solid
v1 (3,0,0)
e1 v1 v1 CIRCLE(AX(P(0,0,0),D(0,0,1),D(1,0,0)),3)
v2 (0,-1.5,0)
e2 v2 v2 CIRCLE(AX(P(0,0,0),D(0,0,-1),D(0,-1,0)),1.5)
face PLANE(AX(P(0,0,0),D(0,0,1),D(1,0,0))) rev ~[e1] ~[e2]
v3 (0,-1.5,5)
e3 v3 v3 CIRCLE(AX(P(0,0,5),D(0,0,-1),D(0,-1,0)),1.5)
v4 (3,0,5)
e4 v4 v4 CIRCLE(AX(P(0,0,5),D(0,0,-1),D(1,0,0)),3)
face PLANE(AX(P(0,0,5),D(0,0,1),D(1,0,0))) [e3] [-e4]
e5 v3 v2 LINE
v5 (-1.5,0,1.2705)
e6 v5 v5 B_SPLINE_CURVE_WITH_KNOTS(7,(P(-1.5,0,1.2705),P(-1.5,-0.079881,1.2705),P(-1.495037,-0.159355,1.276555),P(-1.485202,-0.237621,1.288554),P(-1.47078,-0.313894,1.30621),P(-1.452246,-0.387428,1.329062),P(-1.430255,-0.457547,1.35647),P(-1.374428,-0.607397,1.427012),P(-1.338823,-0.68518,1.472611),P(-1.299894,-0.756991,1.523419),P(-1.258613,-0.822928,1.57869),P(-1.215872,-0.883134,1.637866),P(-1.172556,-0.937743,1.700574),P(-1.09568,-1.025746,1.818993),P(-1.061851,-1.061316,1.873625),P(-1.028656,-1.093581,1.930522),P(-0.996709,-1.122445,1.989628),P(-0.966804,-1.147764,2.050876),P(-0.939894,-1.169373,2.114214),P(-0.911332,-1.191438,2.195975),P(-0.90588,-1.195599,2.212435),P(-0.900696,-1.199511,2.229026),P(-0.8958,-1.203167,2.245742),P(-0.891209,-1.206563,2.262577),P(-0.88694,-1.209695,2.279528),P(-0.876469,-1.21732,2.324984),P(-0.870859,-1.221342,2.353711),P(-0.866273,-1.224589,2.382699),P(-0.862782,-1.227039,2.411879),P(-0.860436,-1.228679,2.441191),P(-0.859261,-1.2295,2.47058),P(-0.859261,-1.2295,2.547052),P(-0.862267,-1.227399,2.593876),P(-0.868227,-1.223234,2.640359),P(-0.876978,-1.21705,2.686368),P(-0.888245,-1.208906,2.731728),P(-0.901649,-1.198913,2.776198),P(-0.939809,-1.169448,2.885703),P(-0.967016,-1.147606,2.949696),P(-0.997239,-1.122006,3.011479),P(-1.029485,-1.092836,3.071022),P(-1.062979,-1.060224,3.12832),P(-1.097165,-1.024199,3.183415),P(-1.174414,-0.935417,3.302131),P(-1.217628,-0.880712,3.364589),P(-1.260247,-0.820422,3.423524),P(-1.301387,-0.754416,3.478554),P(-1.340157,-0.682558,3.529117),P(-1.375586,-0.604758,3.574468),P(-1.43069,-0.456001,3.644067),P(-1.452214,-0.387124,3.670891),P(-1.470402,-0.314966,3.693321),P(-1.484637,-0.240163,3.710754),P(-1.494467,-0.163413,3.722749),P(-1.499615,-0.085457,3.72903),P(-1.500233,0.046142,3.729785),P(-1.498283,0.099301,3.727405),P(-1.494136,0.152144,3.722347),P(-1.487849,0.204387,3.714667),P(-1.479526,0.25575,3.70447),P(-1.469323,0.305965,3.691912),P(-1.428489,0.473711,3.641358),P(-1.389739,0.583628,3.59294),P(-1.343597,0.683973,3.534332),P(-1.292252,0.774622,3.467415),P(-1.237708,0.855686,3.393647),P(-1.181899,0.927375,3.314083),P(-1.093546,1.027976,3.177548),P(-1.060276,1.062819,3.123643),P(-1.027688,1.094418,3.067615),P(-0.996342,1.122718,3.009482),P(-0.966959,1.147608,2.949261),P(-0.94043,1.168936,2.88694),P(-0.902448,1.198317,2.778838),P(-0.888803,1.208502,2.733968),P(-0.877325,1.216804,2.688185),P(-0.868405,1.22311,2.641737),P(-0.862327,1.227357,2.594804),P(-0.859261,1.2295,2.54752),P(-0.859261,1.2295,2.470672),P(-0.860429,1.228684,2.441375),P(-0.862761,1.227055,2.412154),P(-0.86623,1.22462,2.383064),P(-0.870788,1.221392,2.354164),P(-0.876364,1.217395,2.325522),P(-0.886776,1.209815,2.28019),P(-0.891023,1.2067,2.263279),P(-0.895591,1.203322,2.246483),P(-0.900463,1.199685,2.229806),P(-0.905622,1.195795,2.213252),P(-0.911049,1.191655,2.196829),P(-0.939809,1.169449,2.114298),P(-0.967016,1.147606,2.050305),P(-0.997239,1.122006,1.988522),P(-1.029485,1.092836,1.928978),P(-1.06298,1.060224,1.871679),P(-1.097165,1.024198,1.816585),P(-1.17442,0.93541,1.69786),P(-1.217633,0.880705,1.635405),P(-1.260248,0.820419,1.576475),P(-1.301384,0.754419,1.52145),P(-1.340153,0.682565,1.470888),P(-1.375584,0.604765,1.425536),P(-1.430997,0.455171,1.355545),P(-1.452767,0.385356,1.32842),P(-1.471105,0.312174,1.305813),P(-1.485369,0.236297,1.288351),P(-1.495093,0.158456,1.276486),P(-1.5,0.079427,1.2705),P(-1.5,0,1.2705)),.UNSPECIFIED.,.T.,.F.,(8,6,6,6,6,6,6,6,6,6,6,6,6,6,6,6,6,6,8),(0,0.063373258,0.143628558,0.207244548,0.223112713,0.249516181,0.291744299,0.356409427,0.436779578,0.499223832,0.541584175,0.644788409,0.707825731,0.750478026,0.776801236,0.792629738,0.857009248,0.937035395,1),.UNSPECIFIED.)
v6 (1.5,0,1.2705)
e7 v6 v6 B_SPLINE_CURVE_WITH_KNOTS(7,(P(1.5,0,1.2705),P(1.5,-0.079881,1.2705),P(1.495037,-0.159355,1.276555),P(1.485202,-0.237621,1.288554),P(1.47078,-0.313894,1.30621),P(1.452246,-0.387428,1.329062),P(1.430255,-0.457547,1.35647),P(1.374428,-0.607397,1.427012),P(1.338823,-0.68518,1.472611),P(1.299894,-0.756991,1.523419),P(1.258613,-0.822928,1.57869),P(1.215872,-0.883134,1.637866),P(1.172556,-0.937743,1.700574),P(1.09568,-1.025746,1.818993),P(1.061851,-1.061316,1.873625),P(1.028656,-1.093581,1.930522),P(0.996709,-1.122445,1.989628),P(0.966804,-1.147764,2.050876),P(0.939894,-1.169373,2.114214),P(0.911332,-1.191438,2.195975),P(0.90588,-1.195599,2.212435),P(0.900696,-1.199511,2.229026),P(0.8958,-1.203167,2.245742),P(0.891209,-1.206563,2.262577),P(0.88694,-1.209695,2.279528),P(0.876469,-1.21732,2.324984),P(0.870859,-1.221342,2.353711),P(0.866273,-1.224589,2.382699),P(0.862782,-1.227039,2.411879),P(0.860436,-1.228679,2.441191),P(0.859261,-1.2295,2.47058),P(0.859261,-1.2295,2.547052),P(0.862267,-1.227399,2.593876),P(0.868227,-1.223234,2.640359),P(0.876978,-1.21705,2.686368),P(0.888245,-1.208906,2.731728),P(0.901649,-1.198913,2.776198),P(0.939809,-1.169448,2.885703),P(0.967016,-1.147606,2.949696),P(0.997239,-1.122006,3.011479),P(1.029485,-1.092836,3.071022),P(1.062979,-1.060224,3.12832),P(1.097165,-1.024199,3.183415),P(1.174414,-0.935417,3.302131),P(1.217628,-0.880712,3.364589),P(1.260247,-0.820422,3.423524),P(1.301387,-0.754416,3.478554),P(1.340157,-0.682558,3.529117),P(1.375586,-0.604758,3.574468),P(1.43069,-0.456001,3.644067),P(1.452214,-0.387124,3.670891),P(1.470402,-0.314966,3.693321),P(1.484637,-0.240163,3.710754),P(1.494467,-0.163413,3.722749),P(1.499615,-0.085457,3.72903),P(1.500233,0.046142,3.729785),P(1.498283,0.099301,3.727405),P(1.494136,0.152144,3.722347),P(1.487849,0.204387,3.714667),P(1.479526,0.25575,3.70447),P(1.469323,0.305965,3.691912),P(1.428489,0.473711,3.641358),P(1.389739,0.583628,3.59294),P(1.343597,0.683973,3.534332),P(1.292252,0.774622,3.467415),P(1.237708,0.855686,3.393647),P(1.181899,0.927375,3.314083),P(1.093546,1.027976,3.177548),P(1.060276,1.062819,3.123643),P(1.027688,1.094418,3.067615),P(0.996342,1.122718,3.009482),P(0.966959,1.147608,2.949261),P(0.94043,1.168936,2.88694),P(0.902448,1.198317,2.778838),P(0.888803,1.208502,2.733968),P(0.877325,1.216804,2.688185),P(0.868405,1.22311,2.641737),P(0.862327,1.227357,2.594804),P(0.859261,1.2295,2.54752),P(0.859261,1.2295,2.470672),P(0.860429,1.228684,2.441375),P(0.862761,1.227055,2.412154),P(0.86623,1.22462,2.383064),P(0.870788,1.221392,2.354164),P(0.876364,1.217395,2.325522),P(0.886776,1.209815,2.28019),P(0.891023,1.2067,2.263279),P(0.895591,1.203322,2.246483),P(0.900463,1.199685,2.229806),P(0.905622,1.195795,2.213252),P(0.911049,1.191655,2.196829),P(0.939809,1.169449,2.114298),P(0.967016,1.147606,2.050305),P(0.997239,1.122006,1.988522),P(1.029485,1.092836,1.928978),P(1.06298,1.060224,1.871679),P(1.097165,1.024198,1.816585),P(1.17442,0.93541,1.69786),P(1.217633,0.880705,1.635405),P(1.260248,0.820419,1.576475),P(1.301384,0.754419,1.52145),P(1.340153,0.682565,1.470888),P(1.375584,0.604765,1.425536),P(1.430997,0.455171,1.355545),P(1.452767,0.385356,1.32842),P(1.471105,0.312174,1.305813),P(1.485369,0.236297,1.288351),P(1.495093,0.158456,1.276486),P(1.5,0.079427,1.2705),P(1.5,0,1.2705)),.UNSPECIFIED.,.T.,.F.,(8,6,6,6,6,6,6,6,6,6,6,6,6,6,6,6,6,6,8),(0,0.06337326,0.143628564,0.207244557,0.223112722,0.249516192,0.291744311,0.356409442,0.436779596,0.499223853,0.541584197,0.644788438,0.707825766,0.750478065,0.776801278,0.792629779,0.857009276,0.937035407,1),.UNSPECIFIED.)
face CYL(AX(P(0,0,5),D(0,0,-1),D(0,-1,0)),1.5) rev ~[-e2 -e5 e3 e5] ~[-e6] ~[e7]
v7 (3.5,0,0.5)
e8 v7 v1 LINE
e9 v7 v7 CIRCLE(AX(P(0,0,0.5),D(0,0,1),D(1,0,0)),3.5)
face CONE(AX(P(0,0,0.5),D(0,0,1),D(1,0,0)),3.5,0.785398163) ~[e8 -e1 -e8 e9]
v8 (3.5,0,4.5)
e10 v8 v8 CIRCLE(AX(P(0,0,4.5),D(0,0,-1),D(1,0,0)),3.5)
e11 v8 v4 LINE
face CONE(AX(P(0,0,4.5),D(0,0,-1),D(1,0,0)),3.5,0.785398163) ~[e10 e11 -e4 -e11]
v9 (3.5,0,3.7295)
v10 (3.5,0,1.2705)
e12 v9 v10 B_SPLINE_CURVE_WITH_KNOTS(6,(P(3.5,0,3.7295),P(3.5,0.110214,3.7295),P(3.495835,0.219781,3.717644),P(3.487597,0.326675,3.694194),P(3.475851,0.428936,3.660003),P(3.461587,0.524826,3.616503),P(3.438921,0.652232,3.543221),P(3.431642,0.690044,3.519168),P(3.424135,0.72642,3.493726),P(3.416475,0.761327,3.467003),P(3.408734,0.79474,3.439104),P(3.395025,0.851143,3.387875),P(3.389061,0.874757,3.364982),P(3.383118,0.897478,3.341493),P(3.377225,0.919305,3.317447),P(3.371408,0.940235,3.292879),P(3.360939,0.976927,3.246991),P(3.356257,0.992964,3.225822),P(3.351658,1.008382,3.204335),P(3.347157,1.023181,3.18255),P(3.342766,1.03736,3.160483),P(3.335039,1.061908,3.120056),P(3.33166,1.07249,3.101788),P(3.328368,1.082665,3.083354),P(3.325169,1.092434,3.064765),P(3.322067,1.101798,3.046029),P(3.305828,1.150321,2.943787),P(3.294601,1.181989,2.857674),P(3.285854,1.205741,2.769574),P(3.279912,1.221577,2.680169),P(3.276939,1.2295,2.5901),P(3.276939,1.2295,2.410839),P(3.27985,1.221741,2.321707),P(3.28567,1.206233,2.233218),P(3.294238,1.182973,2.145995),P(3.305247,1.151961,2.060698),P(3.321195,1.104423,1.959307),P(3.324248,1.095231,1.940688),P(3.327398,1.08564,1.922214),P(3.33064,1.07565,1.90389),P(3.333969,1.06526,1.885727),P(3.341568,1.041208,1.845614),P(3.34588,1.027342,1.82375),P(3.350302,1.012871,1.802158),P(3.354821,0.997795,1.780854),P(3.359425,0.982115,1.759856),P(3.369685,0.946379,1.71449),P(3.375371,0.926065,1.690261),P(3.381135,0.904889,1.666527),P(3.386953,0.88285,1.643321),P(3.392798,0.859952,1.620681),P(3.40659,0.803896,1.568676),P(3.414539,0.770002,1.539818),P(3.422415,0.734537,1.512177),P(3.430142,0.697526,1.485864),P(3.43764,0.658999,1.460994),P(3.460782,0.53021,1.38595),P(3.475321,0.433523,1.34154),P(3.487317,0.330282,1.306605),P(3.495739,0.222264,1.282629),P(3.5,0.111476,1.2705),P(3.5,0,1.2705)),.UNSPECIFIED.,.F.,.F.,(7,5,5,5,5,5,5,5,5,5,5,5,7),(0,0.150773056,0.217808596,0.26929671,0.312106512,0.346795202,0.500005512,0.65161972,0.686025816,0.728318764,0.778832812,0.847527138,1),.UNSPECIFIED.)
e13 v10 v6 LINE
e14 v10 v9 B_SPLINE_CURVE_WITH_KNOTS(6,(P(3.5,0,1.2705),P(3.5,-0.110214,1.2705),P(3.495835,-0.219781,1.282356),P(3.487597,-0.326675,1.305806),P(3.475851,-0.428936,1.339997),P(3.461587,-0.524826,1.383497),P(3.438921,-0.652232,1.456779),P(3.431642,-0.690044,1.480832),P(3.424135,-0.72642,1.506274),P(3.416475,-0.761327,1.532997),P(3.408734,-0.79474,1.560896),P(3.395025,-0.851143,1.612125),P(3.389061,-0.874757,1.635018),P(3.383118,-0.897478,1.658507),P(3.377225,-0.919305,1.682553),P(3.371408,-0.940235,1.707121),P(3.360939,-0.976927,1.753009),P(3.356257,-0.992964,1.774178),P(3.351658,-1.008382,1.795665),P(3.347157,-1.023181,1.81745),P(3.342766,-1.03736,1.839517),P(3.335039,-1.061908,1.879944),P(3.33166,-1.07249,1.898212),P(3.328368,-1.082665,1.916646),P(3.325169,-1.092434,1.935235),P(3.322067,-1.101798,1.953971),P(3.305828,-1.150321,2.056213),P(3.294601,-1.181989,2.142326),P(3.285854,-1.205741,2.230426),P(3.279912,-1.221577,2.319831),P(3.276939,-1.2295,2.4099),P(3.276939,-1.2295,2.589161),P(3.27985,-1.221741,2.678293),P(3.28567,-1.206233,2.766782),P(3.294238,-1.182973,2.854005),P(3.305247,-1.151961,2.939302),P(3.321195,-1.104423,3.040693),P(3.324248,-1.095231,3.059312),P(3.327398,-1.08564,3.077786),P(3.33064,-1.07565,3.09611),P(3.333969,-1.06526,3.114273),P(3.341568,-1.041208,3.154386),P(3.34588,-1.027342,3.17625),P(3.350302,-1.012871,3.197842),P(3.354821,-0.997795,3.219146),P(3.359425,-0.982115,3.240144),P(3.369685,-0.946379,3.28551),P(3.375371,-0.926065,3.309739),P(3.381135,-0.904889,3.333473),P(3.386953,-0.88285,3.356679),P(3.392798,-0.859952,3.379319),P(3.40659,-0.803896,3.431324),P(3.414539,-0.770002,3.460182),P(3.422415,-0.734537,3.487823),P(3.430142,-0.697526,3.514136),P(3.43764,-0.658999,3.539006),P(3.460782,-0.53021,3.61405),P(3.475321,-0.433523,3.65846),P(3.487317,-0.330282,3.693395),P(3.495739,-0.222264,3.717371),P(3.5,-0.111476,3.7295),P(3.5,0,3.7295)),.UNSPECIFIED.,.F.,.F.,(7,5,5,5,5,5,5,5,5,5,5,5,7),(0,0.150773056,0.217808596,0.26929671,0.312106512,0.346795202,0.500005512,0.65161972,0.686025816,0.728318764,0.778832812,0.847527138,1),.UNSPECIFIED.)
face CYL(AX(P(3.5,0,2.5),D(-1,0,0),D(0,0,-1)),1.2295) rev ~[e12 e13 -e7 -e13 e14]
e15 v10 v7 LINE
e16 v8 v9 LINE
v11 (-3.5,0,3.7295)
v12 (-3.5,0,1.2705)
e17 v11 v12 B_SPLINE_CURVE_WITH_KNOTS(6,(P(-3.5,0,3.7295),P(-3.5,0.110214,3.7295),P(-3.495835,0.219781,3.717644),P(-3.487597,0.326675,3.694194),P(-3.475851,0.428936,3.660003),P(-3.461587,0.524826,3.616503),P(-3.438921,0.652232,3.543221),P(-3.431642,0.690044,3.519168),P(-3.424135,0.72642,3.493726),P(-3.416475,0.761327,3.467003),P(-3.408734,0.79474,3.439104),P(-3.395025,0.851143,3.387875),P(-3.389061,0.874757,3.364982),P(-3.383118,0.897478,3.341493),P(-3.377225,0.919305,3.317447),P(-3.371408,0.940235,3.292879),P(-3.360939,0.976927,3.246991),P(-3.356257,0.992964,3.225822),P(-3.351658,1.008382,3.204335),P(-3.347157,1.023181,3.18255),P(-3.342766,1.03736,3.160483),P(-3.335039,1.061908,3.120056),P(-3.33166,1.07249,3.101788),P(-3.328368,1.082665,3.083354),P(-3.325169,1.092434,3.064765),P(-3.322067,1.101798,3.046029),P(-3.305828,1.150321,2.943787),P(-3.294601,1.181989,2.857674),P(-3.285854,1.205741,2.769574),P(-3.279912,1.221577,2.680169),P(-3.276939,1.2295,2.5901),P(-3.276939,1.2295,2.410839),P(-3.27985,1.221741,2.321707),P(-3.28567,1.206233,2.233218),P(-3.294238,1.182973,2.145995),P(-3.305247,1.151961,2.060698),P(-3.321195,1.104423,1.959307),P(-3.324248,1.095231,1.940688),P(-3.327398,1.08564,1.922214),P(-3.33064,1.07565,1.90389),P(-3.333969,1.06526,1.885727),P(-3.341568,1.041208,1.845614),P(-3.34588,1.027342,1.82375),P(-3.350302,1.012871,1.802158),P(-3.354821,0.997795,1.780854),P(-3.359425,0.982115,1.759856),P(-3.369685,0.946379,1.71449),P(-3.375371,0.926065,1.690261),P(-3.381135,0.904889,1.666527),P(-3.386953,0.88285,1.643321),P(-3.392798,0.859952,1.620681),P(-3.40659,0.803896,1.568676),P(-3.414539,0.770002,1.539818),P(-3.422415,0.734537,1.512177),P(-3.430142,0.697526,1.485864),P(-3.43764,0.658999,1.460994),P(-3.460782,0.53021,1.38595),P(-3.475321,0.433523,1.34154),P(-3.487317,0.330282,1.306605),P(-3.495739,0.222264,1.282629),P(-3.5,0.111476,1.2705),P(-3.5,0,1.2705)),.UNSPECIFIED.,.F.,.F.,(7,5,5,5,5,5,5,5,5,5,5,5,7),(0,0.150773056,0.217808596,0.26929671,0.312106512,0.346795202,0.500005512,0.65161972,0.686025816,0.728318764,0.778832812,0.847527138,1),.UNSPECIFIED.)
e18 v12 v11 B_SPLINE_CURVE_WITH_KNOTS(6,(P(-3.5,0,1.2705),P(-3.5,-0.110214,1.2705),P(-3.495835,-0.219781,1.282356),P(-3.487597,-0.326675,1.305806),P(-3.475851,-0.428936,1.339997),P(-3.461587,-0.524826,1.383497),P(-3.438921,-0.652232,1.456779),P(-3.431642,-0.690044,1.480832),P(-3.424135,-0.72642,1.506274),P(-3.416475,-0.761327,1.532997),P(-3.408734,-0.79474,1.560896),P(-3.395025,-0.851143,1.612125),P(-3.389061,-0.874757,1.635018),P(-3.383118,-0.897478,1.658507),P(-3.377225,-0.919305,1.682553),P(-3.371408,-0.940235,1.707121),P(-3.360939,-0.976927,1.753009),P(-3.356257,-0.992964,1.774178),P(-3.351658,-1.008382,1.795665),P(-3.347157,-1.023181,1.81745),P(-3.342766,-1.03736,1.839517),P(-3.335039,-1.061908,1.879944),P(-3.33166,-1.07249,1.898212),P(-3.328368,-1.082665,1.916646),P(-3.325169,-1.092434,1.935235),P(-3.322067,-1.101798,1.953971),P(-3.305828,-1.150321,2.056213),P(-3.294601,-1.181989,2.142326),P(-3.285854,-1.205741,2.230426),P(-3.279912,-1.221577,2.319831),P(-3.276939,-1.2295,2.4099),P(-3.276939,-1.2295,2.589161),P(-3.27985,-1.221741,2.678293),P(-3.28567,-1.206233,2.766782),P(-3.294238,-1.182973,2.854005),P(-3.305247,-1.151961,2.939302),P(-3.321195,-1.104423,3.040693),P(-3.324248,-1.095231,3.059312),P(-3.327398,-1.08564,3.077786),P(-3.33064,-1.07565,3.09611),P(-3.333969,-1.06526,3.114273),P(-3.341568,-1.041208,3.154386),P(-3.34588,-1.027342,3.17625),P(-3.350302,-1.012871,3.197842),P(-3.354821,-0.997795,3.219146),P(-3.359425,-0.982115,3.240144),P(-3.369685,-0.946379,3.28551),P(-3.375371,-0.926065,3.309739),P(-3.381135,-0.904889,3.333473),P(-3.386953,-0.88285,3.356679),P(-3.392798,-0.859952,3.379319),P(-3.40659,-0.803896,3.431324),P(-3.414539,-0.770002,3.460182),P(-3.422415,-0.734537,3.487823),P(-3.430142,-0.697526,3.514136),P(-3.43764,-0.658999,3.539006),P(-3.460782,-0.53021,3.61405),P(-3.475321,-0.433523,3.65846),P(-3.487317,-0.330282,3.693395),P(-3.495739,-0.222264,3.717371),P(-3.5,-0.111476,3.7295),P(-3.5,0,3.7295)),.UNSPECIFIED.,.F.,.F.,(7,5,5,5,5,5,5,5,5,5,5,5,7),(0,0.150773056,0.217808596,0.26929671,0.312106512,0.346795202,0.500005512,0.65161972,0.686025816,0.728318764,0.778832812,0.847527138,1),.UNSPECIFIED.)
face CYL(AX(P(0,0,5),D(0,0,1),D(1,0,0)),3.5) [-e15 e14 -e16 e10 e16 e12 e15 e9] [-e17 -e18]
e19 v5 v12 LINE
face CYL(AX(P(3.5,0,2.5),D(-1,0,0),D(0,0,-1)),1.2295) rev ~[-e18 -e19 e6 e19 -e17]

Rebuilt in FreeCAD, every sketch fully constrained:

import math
import FreeCAD as App
import Part
import Sketcher
from FreeCAD import Vector
Q = App.Units.Quantity


def edges_at(feature, points):
    """Names of the edges that pass closest to the given points."""
    edges = feature.Shape.Edges
    near = lambda p: min(range(len(edges)), key=lambda i: edges[i].distToShape(Part.Vertex(*p))[0])
    return sorted({f"Edge{near(p) + 1}" for p in points})


def add_polygon(sketch, points):
    """Adds a closed chain of lines whose ends are joined by coincident constraints."""
    first, n = sketch.GeometryCount, len(points)
    for a, b in zip(points, points[1:] + points[:1]):
        sketch.addGeometry(Part.LineSegment(App.Vector(*a, 0), App.Vector(*b, 0)), False)
    for i in range(n):
        sketch.addConstraint(Sketcher.Constraint("Coincident", first + i, 2, first + (i + 1) % n, 1))

doc = App.newDocument("Part")
params = doc.addObject("Spreadsheet::Sheet", "Params")
for row, (alias, value) in enumerate([
    ("sketch1_width", "7 mm"),
    ("pad1_length", "5 mm"),
    ("hole_diameter", "2.459 mm"),
    ("sketch3_radius", "3.5 mm"),
    ("pocket1_length", "5 mm"),
    ("sketch4_diameter", "3 mm"),
    ("hole2_diameter", "3 mm"),
    ("chamfer_size", "0.5 mm"),
], start=1):
    params.set(f"A{row}", alias)
    params.set(f"B{row}", "=" + value)
    params.setAlias(f"B{row}", alias)

body = doc.addObject("PartDesign::Body", "Body")

sketch1 = body.newObject("Sketcher::SketchObject", "Sketch")
sketch1.AttachmentSupport = (doc.getObject("XY_Plane"), [""])
sketch1.MapMode = "FlatFace"
add_polygon(sketch1, [(3.5, 3.5), (-3.5, 3.5), (-3.5, -3.5), (3.5, -3.5)])
sketch1.addConstraint([
    Sketcher.Constraint("Horizontal", 0),
    Sketcher.Constraint("Vertical", 1),
    Sketcher.Constraint("Horizontal", 2),
    Sketcher.Constraint("Vertical", 3),
    Sketcher.Constraint("Symmetric", 0, 2, 2, 2, -1, 1),
    Sketcher.Constraint("Equal", 2, 1),
    Sketcher.Constraint("DistanceX", 0, 2, 0, 1, Q("7 mm")),
])
sketch1.setExpression("Constraints[10]", "Params.sketch1_width")
pad1 = body.newObject("PartDesign::Pad", "Pad")
pad1.Profile = sketch1
pad1.setExpression("Length", "Params.pad1_length")

sketch2 = body.newObject("Sketcher::SketchObject", "Sketch001")
sketch2.AttachmentSupport = (doc.getObject("YZ_Plane"), [""])
sketch2.MapMode = "FlatFace"
sketch2.AttachmentOffset = App.Placement(Vector(0, 0, 3.5), App.Rotation())
sketch2.addGeometry(Part.Circle(Vector(0, 2.5, 0), Vector(0, 0, 1), 1.2295), False)
sketch2.addConstraint([
    Sketcher.Constraint("PointOnObject", 0, 3, -2),
    Sketcher.Constraint("Diameter", 0, Q("2.459 mm")),
    Sketcher.Constraint("DistanceY", -1, 1, 0, 3, Q("2.5 mm")),
])
doc.recompute()
hole = body.newObject("PartDesign::Hole", "Hole")
hole.Profile = sketch2
hole.ThreadType = "None"
hole.setExpression("Diameter", "Params.hole_diameter")
hole.DepthType = "ThroughAll"

sketch3 = body.newObject("Sketcher::SketchObject", "Sketch002")
sketch3.AttachmentSupport = (doc.getObject("XY_Plane"), [""])
sketch3.MapMode = "FlatFace"
sketch3.AttachmentOffset = App.Placement(Vector(0, 0, 5), App.Rotation())
sketch3.addGeometry([
    Part.LineSegment(Vector(3.5, 0, 0), Vector(3.5, 3.5, 0)),
    Part.LineSegment(Vector(3.5, 3.5, 0), Vector(0, 3.5, 0)),
    Part.ArcOfCircle(Part.Circle(Vector(0, 0, 0), Vector(0, 0, 1), 3.5), math.radians(0), math.radians(90)),
    Part.ArcOfCircle(Part.Circle(Vector(0, 0, 0), Vector(0, 0, 1), 3.5), math.radians(90), math.radians(180)),
    Part.LineSegment(Vector(0, 3.5, 0), Vector(-3.5, 3.5, 0)),
    Part.LineSegment(Vector(-3.5, 3.5, 0), Vector(-3.5, 0, 0)),
    Part.LineSegment(Vector(3.5, -3.5, 0), Vector(3.5, 0, 0)),
    Part.ArcOfCircle(Part.Circle(Vector(0, 0, 0), Vector(0, 0, 1), 3.5), math.radians(-90), math.radians(0)),
    Part.LineSegment(Vector(0, -3.5, 0), Vector(3.5, -3.5, 0)),
    Part.ArcOfCircle(Part.Circle(Vector(0, 0, 0), Vector(0, 0, 1), 3.5), math.radians(180), math.radians(270)),
    Part.LineSegment(Vector(-3.5, 0, 0), Vector(-3.5, -3.5, 0)),
    Part.LineSegment(Vector(-3.5, -3.5, 0), Vector(0, -3.5, 0)),
], False)
sketch3.addConstraint([
    Sketcher.Constraint("Coincident", 0, 2, 1, 1),
    Sketcher.Constraint("Tangent", 1, 2, 2, 2),
    Sketcher.Constraint("Tangent", 2, 1, 0, 1),
    Sketcher.Constraint("Tangent", 3, 1, 4, 1),
    Sketcher.Constraint("Coincident", 4, 2, 5, 1),
    Sketcher.Constraint("Tangent", 5, 2, 3, 2),
    Sketcher.Constraint("Tangent", 6, 2, 7, 2),
    Sketcher.Constraint("Tangent", 7, 1, 8, 1),
    Sketcher.Constraint("Coincident", 8, 2, 6, 1),
    Sketcher.Constraint("Tangent", 9, 1, 10, 1),
    Sketcher.Constraint("Coincident", 10, 2, 11, 1),
    Sketcher.Constraint("Tangent", 11, 2, 9, 2),
    Sketcher.Constraint("Vertical", 0),
    Sketcher.Constraint("Horizontal", 1),
    Sketcher.Constraint("Horizontal", 4),
    Sketcher.Constraint("Vertical", 5),
    Sketcher.Constraint("Vertical", 6),
    Sketcher.Constraint("Horizontal", 8),
    Sketcher.Constraint("Vertical", 10),
    Sketcher.Constraint("Horizontal", 11),
    Sketcher.Constraint("Coincident", 2, 3, -1, 1),
    Sketcher.Constraint("Coincident", 3, 3, -1, 1),
    Sketcher.Constraint("Coincident", 7, 3, -1, 1),
    Sketcher.Constraint("Coincident", 9, 3, -1, 1),
    Sketcher.Constraint("Equal", 2, 3),
    Sketcher.Constraint("Equal", 3, 7),
    Sketcher.Constraint("Equal", 7, 9),
    Sketcher.Constraint("Radius", 2, Q("3.5 mm")),
])
sketch3.setExpression("Constraints[27]", "Params.sketch3_radius")
pocket1 = body.newObject("PartDesign::Pocket", "Pocket")
pocket1.Profile = sketch3
pocket1.setExpression("Length", "Params.pocket1_length")

sketch4 = body.newObject("Sketcher::SketchObject", "Sketch003")
sketch4.AttachmentSupport = (doc.getObject("XY_Plane"), [""])
sketch4.MapMode = "FlatFace"
sketch4.AttachmentOffset = App.Placement(Vector(0, 0, 5), App.Rotation())
sketch4.addGeometry([
    Part.Circle(Vector(0, 0, 0), Vector(0, 0, 1), 1.5),
    Part.Circle(Vector(0, 0, 0), Vector(0, 0, 1), 1.5),
], False)
sketch4.addConstraint([
    Sketcher.Constraint("Coincident", 0, 3, -1, 1),
    Sketcher.Constraint("Coincident", 1, 3, -1, 1),
    Sketcher.Constraint("Equal", 0, 1),
    Sketcher.Constraint("Diameter", 0, Q("3 mm")),
])
sketch4.setExpression("Constraints[3]", "Params.sketch4_diameter")
doc.recompute()
hole2 = body.newObject("PartDesign::Hole", "Hole001")
hole2.Profile = sketch4
hole2.ThreadType = "None"
hole2.setExpression("Diameter", "Params.hole2_diameter")
hole2.DepthType = "ThroughAll"
doc.recompute()

chamfer = body.newObject("PartDesign::Chamfer", "Chamfer")
chamfer.Base = (hole2, edges_at(hole2, [(-3.5, 0, 0), (-3.5, 0, 5)]))
chamfer.setExpression("Size", "Params.chamfer_size")

doc.recompute()
